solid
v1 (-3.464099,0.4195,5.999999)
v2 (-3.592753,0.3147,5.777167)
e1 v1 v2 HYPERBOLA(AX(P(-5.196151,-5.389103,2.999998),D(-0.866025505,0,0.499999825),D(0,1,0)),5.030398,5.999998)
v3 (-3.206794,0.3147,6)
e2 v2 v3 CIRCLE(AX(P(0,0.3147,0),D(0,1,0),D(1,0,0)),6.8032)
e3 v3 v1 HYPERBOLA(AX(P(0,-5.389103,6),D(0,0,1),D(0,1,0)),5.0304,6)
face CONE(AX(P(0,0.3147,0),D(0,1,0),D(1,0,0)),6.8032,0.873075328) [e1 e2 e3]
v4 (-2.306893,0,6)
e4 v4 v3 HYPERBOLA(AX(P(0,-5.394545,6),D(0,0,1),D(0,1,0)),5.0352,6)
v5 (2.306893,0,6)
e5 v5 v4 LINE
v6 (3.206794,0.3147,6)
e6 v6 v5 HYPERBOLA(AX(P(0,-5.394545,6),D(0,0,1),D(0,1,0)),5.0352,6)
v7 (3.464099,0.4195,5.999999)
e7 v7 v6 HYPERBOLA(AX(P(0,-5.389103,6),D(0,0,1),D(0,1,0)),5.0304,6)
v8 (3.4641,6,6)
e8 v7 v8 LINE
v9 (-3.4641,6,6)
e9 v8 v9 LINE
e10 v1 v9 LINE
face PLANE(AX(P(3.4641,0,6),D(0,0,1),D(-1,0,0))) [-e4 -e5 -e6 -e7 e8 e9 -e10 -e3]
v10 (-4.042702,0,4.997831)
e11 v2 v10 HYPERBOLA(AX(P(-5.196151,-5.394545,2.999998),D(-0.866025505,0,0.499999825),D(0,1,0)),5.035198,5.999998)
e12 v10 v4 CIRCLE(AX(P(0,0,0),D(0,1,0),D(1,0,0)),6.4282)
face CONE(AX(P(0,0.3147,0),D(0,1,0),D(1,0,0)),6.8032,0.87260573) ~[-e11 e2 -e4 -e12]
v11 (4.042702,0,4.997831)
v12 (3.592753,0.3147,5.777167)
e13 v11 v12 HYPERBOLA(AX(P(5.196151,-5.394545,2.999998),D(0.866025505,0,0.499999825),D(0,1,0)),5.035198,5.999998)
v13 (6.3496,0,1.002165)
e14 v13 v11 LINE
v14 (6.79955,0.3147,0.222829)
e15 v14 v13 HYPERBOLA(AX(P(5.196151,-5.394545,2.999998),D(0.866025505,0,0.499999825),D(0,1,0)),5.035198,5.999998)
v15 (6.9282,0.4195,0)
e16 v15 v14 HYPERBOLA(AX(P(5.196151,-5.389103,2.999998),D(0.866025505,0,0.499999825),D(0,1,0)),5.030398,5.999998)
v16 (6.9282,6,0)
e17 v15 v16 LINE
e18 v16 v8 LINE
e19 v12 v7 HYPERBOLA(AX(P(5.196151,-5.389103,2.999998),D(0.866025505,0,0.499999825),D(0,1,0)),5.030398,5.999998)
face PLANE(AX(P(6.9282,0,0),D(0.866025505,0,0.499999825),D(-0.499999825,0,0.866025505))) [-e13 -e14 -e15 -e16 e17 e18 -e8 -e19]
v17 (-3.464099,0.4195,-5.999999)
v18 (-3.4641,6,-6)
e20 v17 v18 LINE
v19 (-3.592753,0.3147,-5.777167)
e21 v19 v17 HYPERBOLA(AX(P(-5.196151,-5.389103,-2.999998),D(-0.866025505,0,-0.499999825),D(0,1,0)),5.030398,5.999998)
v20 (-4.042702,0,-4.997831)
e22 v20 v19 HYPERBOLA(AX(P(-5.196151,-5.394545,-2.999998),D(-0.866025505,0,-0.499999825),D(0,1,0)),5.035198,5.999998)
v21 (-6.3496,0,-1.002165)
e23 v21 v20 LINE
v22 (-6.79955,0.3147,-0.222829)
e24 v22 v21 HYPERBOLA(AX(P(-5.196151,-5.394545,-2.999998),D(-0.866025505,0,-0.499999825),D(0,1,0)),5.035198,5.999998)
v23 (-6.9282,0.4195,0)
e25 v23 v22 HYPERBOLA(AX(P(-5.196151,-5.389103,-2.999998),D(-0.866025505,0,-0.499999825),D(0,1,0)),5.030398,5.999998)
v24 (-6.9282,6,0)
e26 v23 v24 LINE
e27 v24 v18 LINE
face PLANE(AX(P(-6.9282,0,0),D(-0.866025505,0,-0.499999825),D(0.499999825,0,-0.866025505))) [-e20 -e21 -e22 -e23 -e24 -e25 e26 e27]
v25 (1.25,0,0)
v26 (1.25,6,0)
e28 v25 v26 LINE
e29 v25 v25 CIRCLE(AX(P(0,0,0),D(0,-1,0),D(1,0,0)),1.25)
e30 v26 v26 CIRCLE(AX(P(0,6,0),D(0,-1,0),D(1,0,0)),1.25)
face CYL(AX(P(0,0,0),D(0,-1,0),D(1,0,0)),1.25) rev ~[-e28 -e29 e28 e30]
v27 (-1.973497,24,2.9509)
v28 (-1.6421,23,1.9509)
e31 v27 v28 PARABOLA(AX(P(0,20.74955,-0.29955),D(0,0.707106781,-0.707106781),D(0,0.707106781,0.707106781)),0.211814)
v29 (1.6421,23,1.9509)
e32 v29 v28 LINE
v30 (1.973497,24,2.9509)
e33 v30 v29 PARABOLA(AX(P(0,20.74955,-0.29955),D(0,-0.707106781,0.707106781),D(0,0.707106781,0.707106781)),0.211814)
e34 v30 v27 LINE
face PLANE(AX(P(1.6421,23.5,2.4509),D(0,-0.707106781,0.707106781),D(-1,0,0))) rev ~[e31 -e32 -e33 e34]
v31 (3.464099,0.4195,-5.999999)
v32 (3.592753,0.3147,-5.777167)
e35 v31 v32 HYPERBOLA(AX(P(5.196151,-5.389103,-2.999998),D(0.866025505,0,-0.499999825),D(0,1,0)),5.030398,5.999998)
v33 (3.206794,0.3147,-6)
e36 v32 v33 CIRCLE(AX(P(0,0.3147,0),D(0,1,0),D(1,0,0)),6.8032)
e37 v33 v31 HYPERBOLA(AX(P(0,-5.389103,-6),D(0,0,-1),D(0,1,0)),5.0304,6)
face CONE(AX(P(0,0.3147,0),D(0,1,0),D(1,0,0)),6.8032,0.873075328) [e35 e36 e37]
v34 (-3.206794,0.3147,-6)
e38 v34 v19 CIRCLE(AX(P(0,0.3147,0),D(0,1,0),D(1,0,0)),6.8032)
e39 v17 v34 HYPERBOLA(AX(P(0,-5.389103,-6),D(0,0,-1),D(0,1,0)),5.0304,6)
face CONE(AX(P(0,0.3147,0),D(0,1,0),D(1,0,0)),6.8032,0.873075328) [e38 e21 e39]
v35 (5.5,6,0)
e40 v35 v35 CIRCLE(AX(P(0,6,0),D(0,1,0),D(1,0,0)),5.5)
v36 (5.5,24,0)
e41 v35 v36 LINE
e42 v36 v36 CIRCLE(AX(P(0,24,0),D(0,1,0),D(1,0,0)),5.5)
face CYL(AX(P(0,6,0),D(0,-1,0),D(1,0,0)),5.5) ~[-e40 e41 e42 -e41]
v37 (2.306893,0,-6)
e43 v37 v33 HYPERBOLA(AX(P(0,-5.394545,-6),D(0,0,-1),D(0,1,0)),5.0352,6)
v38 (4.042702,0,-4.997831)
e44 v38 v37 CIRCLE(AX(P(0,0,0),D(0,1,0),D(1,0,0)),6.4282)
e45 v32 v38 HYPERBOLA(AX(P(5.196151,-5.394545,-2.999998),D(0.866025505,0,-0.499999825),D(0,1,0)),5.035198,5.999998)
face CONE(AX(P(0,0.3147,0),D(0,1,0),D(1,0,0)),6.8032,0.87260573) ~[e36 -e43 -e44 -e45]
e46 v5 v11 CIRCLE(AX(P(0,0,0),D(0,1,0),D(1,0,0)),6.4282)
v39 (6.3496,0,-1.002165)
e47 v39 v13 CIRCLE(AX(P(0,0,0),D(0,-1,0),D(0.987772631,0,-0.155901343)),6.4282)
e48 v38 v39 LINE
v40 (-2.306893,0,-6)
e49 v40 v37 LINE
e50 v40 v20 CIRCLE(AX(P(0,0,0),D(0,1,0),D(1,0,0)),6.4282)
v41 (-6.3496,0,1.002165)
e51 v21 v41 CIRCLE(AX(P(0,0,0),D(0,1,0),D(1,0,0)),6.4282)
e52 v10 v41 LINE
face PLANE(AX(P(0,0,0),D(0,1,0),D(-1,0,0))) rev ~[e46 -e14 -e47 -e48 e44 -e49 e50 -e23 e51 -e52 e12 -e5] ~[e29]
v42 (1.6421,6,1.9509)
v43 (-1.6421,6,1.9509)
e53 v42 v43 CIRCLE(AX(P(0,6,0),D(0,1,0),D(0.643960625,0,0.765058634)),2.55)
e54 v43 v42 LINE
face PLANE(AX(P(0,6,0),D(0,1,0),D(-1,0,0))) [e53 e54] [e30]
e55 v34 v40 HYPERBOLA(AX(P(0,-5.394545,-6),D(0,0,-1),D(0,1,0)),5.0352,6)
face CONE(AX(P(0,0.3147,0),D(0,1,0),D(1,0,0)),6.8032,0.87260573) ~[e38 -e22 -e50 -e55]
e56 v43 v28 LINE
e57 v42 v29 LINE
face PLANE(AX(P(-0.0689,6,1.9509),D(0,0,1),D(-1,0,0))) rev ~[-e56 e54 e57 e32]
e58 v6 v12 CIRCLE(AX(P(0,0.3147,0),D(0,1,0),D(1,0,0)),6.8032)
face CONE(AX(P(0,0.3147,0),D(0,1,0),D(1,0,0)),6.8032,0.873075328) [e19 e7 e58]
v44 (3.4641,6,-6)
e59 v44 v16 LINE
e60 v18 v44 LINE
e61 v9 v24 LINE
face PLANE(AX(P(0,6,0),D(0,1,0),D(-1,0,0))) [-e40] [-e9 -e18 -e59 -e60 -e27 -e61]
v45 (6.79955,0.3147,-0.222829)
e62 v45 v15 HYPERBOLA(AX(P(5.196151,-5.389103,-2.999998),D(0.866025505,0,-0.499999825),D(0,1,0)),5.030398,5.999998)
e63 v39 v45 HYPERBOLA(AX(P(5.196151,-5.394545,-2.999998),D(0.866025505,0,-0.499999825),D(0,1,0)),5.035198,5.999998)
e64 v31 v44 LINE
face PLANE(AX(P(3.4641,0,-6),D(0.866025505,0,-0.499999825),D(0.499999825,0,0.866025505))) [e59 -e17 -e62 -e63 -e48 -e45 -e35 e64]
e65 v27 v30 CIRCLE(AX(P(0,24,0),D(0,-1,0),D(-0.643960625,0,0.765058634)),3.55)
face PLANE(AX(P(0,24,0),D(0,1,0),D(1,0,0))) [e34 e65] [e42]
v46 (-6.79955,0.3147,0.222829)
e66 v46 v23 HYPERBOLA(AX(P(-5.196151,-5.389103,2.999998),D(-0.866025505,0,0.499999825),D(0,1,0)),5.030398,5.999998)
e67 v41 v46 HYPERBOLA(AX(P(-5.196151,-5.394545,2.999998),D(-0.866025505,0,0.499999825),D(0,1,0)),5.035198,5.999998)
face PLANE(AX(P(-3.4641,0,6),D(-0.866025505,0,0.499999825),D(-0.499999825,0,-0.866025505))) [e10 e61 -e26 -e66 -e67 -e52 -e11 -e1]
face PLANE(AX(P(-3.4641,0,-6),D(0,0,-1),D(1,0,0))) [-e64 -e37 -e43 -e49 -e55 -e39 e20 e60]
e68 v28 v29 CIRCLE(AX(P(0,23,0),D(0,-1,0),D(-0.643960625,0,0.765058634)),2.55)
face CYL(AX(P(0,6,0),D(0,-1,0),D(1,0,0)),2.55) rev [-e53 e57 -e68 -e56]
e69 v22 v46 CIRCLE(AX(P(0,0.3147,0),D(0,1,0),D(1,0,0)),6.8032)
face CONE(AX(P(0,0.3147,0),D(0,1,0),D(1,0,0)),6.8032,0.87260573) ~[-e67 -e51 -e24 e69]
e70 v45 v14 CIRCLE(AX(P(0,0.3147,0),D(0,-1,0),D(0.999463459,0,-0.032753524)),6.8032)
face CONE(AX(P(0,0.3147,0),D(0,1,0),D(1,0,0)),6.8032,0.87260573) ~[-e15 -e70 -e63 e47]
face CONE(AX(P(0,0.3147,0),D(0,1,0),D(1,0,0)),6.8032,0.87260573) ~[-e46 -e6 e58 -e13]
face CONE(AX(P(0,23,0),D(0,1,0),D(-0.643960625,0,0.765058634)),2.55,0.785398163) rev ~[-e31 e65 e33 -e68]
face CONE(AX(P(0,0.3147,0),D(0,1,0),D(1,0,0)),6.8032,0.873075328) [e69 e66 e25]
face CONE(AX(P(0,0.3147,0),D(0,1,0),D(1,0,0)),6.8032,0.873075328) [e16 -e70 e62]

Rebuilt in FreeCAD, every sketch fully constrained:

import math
import FreeCAD as App
import Part
import Sketcher

V = App.Vector
Q = App.Units.Quantity


def edges_at(feature, points):
    """Names of the edges that pass closest to the given points."""
    edges = feature.Shape.Edges
    near = lambda p: min(range(len(edges)), key=lambda i: edges[i].distToShape(Part.Vertex(*p))[0])
    return sorted({f"Edge{near(p) + 1}" for p in points})


def add_polygon(sketch, points):
    """Adds a closed chain of lines whose ends are joined by coincident constraints."""
    first, n = sketch.GeometryCount, len(points)
    for a, b in zip(points, points[1:] + points[:1]):
        sketch.addGeometry(Part.LineSegment(App.Vector(*a, 0), App.Vector(*b, 0)), False)
    for i in range(n):
        sketch.addConstraint(Sketcher.Constraint("Coincident", first + i, 2, first + (i + 1) % n, 1))

doc = App.newDocument("Part")
body = doc.addObject("PartDesign::Body", "Body")

sketch1 = body.newObject("Sketcher::SketchObject", "Sketch")
sketch1.AttachmentSupport = (doc.getObject("XZ_Plane"), [""])
sketch1.MapMode = "FlatFace"
add_polygon(sketch1, [(7, 0), (3, -6), (-3, -6), (-7, 0), (-3, 6), (3, 6)])
sketch1.addConstraint(Sketcher.Constraint("Horizontal", 1))
sketch1.addConstraint(Sketcher.Constraint("Horizontal", 4))
sketch1.addConstraint(Sketcher.Constraint("Symmetric", 0, 2, 3, 2, -1, 1))
sketch1.addConstraint(Sketcher.Constraint("Symmetric", 2, 2, 5, 2, -1, 1))
sketch1.addConstraint(Sketcher.Constraint("PointOnObject", 2, 2, -1))
sketch1.addConstraint(Sketcher.Constraint("Parallel", 2, 5))
sketch1.addConstraint(Sketcher.Constraint("Vertical", 1, 2, 3, 2))
sketch1.addConstraint(Sketcher.Constraint("DistanceY", 1, 2, 3, 2, Q("12 mm")))
sketch1.addConstraint(Sketcher.Constraint("Angle", 0, Q("-120 deg")))
sketch1.addConstraint(Sketcher.Constraint("DistanceX", 1, 2, 1, 1, Q("6.9282 mm")))
pad1 = body.newObject("PartDesign::Pad", "Pad")
pad1.Profile = sketch1
pad1.Length = 6
pad1.Reversed = True

sketch2 = body.newObject("Sketcher::SketchObject", "Sketch001")
sketch2.AttachmentSupport = (doc.getObject("XZ_Plane"), [""])
sketch2.MapMode = "FlatFace"
sketch2.AttachmentOffset = App.Placement(V(0, 0, -6), App.Rotation())
sketch2.addGeometry(Part.Circle(V(0, 0, 0), V(0, 0, 1), 5.5), False)
sketch2.addGeometry(Part.LineSegment(V(1.6, 2, 0), V(-1.6, 2, 0)), False)
sketch2.addGeometry(Part.ArcOfCircle(Part.Circle(V(0, 0, 0), V(0, 0, 1), 2.5), math.radians(130), math.radians(410)), False)
sketch2.addConstraint(Sketcher.Constraint("Coincident", 1, 1, 2, 2))
sketch2.addConstraint(Sketcher.Constraint("Coincident", 2, 1, 1, 2))
sketch2.addConstraint(Sketcher.Constraint("Horizontal", 1))
sketch2.addConstraint(Sketcher.Constraint("Coincident", 0, 3, -1, 1))
sketch2.addConstraint(Sketcher.Constraint("Coincident", 2, 3, -1, 1))
sketch2.addConstraint(Sketcher.Constraint("Diameter", 0, Q("11 mm")))
sketch2.addConstraint(Sketcher.Constraint("Radius", 2, Q("2.55 mm")))
sketch2.addConstraint(Sketcher.Constraint("DistanceX", 1, 2, 1, 1, Q("3.2842 mm")))
pad2 = body.newObject("PartDesign::Pad", "Pad001")
pad2.Profile = sketch2
pad2.Length = 18
pad2.Reversed = True

sketch3 = body.newObject("Sketcher::SketchObject", "Sketch002")
sketch3.AttachmentSupport = (doc.getObject("XY_Plane"), [""])
sketch3.MapMode = "FlatFace"
add_polygon(sketch3, [(6.43, 0), (6.93, 0), (6.93, 0.42), (6.8, 0.31)])
sketch3.addConstraint(Sketcher.Constraint("Horizontal", 0))
sketch3.addConstraint(Sketcher.Constraint("Vertical", 1))
sketch3.addConstraint(Sketcher.Constraint("PointOnObject", 0, 2, -1))
sketch3.addConstraint(Sketcher.Constraint("Parallel", 2, 3))
sketch3.addConstraint(Sketcher.Constraint("DistanceX", 0, 1, 0, 2, Q("0.5 mm")))
sketch3.addConstraint(Sketcher.Constraint("DistanceX", 2, 2, 1, 2, Q("0.125 mm")))
sketch3.addConstraint(Sketcher.Constraint("DistanceY", 2, 2, 1, 2, Q("0.1048 mm")))
sketch3.addConstraint(Sketcher.Constraint("DistanceX", -1, 1, 0, 2, Q("6.9282 mm")))
groove = body.newObject("PartDesign::Groove", "Groove")
groove.Profile = sketch3
groove.ReferenceAxis = (sketch3, ["V_Axis"])
groove.Angle = 360
doc.recompute()

chamfer = body.newObject("PartDesign::Chamfer", "Chamfer")
chamfer.Base = (groove, edges_at(groove, [(0, 24, -2.55), (0, 24, 1.951)]))
chamfer.Size = 1

sketch4 = body.newObject("Sketcher::SketchObject", "Sketch003")
sketch4.AttachmentSupport = (doc.getObject("XZ_Plane"), [""])
sketch4.MapMode = "FlatFace"
sketch4.addGeometry(Part.Circle(V(0, 0, 0), V(0, 0, 1), 1.2), False)
sketch4.addConstraint(Sketcher.Constraint("Coincident", 0, 3, -1, 1))
sketch4.addConstraint(Sketcher.Constraint("Diameter", 0, Q("2.5 mm")))
pocket1 = body.newObject("PartDesign::Pocket", "Pocket")
pocket1.Profile = sketch4
pocket1.Type = "ThroughAll"

doc.recompute()
